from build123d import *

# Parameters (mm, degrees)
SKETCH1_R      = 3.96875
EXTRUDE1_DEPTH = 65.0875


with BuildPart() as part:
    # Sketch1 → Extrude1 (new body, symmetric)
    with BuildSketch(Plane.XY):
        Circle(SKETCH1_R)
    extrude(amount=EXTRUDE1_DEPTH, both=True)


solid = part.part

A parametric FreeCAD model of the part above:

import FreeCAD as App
import Part
import Sketcher
from FreeCAD import Vector
Q = App.Units.Quantity

doc = App.newDocument("Part")
params = doc.addObject("Spreadsheet::Sheet", "Params")
for row, (alias, value) in enumerate([
    ("sketch1_diameter", "0.3125 in"),
    ("pad1_length", "5.125 in"),
], start=1):
    params.set(f"A{row}", alias)
    params.set(f"B{row}", "=" + value)
    params.setAlias(f"B{row}", alias)

body = doc.addObject("PartDesign::Body", "Body")

sketch1 = body.newObject("Sketcher::SketchObject", "Sketch")
sketch1.AttachmentSupport = (doc.getObject("XY_Plane"), [""])
sketch1.MapMode = "FlatFace"
sketch1.addGeometry(Part.Circle(Vector(0, 0, 0), Vector(0, 0, 1), 4), False)
sketch1.addConstraint(Sketcher.Constraint("Coincident", 0, 3, -1, 1))
sketch1.addConstraint(Sketcher.Constraint("Diameter", 0, Q("0.3125 in")))
sketch1.setExpression("Constraints[1]", "Params.sketch1_diameter")
pad1 = body.newObject("PartDesign::Pad", "Pad")
pad1.Profile = sketch1
pad1.setExpression("Length", "Params.pad1_length")
pad1.Midplane = True

doc.recompute()
